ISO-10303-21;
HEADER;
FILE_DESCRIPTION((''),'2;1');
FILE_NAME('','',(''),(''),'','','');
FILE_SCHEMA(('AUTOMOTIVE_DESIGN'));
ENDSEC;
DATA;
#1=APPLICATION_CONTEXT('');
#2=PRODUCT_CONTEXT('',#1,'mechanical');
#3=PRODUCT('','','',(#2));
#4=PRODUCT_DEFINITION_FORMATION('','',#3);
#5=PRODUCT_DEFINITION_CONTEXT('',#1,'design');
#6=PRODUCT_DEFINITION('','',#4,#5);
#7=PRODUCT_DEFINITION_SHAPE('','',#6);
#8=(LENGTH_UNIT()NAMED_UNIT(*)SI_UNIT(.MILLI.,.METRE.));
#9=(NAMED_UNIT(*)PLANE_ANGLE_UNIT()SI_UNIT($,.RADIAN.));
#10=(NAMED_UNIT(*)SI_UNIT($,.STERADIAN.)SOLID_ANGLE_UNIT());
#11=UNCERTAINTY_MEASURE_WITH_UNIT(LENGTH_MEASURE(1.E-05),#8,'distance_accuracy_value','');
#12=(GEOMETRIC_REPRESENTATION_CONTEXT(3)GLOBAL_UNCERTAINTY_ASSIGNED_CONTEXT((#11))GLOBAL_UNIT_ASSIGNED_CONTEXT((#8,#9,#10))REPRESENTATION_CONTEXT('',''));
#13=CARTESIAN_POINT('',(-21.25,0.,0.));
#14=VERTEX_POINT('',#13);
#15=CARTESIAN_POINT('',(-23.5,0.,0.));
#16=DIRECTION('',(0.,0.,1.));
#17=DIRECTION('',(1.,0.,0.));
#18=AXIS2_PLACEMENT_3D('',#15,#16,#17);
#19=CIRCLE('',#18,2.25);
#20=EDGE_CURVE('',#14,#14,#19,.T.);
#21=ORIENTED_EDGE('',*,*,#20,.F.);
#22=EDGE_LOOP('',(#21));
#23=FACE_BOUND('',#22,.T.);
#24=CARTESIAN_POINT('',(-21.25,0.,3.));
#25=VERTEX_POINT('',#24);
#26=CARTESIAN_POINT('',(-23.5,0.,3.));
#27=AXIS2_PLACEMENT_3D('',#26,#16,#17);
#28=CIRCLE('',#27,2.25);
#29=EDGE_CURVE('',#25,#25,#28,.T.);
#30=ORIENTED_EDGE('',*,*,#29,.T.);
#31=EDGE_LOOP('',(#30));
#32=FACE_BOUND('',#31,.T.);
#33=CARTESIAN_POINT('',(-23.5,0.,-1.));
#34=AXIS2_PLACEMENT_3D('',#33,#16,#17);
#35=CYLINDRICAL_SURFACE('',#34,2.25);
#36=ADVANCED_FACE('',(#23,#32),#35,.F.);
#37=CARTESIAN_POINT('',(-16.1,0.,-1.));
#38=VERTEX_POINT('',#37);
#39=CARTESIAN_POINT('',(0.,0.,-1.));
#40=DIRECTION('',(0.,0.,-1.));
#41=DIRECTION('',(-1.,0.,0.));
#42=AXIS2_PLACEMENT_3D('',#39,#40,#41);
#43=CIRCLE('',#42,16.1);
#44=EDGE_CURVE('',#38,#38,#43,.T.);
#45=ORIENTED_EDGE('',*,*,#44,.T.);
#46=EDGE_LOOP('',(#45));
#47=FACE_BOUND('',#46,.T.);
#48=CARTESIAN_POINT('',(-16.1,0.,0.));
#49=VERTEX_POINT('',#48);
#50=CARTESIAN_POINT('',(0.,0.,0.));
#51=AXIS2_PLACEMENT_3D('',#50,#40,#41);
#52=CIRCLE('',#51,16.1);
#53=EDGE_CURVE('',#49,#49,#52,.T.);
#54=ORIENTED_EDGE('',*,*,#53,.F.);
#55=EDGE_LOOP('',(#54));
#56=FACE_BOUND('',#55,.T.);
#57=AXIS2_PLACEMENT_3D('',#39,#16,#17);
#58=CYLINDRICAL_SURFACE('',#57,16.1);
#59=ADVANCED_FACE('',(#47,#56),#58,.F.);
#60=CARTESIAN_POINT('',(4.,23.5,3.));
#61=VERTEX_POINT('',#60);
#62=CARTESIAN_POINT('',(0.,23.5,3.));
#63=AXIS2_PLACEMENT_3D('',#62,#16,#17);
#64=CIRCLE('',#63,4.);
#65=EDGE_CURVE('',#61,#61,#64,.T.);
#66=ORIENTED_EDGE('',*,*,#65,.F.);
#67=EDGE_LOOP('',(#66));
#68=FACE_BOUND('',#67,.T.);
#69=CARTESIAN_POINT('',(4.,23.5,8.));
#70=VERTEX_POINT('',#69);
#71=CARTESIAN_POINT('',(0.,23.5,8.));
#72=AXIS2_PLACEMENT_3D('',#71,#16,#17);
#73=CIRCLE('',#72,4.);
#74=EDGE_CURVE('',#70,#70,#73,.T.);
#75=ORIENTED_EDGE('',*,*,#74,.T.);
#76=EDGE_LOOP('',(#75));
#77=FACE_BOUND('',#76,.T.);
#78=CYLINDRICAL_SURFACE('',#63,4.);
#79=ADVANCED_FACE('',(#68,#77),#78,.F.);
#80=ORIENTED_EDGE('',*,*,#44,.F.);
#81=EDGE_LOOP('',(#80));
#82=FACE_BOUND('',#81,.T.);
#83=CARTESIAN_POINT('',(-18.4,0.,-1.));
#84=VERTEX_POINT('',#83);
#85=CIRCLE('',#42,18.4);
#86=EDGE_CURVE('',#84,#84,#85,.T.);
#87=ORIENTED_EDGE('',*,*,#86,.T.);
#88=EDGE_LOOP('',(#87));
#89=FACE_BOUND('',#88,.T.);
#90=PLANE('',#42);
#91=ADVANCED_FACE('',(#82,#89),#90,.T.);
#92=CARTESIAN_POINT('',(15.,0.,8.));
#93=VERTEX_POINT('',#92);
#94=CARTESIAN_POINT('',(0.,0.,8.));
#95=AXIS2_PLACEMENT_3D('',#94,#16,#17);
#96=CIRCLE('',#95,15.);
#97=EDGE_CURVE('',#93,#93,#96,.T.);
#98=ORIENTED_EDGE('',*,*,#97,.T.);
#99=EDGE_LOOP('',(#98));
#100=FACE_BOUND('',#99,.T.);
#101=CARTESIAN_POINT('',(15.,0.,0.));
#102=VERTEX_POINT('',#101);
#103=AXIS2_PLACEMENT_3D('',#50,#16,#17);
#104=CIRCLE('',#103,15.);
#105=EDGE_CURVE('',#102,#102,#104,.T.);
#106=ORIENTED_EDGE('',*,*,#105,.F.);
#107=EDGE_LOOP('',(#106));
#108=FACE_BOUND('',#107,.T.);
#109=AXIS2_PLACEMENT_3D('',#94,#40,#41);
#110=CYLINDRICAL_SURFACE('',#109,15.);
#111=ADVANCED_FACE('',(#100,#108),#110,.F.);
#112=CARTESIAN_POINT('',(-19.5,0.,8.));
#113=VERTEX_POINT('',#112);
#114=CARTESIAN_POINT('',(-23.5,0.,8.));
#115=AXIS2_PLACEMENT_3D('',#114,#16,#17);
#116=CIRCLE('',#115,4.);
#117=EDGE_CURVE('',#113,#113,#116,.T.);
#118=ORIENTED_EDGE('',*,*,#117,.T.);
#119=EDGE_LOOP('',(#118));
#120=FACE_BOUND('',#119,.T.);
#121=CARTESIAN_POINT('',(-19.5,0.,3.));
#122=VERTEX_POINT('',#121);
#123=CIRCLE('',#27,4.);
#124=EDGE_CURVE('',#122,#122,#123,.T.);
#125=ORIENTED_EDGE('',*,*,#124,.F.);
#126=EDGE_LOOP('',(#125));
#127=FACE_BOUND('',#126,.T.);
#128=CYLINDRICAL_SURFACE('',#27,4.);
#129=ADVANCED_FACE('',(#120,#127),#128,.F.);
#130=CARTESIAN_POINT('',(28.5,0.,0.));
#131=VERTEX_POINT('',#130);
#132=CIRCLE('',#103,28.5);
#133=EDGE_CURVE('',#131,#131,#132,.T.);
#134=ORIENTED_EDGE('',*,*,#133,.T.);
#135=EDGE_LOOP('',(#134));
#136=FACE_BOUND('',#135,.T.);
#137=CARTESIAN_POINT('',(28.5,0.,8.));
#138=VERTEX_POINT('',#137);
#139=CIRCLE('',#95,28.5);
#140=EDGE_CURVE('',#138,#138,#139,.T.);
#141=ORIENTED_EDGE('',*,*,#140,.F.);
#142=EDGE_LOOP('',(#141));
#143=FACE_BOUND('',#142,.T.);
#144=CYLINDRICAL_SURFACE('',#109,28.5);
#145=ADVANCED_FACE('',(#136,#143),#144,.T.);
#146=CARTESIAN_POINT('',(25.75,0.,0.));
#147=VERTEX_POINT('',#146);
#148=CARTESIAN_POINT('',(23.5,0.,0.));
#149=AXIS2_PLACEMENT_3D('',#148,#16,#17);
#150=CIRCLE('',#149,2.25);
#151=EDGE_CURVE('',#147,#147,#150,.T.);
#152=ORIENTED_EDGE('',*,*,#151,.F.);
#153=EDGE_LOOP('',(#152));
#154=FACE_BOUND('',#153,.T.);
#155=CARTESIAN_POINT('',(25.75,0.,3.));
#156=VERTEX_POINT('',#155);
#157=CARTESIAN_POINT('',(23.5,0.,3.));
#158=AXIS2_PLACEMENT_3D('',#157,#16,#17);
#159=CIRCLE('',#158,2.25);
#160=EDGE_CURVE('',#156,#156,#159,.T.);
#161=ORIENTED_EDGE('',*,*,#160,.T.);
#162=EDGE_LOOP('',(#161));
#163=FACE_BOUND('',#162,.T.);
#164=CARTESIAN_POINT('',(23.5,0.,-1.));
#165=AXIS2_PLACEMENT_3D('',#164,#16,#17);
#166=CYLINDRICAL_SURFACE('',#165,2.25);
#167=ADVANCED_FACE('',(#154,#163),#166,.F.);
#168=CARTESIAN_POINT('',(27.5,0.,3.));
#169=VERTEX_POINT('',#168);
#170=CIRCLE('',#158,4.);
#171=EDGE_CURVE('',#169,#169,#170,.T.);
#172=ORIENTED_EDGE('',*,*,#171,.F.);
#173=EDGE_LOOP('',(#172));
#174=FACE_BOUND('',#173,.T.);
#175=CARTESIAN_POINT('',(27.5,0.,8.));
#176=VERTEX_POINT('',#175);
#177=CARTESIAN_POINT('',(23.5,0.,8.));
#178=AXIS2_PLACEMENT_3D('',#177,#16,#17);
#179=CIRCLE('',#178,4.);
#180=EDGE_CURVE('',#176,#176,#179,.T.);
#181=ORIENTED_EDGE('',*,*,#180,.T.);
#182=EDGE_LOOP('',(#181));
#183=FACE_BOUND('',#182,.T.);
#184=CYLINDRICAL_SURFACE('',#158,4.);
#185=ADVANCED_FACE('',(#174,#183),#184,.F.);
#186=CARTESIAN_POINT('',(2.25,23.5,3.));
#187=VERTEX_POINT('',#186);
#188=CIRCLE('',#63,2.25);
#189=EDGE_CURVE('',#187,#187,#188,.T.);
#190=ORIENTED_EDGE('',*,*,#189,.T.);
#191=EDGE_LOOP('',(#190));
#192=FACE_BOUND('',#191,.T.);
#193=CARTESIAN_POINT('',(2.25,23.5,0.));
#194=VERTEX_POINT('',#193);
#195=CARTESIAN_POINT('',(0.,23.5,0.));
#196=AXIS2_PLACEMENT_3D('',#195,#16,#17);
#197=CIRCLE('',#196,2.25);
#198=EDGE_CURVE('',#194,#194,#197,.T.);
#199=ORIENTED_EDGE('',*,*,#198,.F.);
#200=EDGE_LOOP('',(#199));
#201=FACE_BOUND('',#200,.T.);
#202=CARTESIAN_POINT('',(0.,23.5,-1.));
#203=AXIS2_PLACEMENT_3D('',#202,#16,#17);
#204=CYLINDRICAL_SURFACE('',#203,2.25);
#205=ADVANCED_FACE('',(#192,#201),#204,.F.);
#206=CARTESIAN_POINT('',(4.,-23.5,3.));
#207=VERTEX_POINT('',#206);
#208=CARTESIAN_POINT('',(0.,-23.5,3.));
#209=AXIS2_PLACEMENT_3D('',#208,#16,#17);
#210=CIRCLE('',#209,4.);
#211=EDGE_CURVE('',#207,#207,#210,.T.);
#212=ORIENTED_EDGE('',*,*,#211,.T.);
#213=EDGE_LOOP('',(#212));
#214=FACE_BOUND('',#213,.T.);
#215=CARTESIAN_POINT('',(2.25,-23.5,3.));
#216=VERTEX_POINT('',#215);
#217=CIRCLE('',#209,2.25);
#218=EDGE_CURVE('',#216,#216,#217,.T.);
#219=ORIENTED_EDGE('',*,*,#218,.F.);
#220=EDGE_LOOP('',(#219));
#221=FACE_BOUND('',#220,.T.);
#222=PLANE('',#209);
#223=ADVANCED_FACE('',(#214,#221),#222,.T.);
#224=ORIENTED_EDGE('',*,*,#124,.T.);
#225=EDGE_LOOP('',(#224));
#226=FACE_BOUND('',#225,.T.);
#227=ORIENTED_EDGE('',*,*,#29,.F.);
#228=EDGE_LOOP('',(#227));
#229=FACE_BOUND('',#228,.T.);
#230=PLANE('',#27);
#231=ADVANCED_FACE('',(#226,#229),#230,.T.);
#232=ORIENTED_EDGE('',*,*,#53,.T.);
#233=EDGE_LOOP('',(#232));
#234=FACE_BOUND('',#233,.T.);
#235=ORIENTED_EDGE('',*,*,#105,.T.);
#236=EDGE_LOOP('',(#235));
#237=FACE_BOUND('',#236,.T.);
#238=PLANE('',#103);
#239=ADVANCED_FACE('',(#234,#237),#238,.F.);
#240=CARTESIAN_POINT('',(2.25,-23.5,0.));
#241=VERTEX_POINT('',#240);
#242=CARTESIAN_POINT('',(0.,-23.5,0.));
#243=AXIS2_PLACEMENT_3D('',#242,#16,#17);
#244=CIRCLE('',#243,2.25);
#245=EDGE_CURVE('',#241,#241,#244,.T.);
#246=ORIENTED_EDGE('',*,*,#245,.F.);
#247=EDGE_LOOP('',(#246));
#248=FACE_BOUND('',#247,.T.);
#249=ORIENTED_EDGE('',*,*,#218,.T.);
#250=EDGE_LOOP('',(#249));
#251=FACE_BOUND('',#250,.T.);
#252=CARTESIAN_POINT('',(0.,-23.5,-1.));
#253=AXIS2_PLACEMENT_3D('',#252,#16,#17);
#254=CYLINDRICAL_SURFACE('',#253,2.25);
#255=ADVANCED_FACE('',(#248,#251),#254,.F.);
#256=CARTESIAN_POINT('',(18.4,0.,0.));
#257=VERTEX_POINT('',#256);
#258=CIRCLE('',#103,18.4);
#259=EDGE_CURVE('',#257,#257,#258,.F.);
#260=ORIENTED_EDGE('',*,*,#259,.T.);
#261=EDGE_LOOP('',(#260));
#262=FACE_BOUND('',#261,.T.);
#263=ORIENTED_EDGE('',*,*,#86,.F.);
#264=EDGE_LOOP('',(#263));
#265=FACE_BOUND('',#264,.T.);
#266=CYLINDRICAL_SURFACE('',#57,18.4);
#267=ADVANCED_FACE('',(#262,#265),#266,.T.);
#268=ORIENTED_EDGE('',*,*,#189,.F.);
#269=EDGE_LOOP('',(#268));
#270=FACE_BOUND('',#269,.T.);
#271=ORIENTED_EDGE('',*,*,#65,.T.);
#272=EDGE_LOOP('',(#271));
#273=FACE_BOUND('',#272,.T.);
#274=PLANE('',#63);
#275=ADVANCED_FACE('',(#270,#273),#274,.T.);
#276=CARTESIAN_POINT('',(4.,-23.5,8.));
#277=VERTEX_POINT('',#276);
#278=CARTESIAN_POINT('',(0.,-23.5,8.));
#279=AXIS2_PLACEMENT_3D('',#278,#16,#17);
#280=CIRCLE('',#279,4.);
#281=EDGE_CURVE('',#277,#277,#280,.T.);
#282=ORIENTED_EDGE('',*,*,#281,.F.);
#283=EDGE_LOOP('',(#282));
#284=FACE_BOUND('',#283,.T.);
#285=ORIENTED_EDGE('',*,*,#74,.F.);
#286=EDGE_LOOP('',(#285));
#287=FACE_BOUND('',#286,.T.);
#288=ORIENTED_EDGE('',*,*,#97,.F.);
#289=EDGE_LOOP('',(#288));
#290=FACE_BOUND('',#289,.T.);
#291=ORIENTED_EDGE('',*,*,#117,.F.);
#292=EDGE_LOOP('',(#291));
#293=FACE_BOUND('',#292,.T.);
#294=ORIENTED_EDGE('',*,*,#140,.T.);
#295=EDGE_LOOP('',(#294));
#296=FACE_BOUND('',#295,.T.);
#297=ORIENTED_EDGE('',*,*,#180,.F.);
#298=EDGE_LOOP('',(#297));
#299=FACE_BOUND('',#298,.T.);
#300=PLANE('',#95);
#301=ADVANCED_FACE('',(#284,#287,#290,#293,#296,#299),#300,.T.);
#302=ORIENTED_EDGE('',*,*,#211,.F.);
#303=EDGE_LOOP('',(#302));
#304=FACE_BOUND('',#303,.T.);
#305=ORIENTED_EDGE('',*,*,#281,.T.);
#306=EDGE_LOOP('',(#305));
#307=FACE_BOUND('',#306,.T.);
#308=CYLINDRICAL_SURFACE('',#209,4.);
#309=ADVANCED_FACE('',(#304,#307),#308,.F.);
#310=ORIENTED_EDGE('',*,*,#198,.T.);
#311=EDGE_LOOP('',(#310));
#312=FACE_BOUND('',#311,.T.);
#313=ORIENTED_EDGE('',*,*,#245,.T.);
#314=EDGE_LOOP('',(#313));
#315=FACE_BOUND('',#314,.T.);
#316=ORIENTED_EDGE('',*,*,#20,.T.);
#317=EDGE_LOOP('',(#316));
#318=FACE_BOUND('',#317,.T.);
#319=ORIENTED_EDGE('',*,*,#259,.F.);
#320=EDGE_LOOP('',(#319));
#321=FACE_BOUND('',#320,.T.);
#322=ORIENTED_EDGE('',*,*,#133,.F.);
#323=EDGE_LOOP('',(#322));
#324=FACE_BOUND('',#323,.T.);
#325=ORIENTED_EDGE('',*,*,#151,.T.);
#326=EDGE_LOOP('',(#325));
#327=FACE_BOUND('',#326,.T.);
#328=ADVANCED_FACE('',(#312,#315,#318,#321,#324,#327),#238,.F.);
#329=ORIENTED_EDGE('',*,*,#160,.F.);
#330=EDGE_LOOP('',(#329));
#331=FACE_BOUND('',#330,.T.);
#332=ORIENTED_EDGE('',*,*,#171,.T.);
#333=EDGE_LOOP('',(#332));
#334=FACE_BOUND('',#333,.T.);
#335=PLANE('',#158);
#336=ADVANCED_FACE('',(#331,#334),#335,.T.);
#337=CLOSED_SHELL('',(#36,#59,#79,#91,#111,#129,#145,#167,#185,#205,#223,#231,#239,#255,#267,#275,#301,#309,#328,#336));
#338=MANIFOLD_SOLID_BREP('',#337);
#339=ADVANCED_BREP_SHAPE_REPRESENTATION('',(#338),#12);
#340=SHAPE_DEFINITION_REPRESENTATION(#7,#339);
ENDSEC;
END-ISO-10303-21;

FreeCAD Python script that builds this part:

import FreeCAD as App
import Part
import Sketcher

V = App.Vector

doc = App.newDocument("Part")
body = doc.addObject("PartDesign::Body", "Body")

# Sketch on XY plane
sketch1 = body.newObject("Sketcher::SketchObject", "Sketch")
sketch1.AttachmentSupport = (doc.getObject("XY_Plane"), [""])
sketch1.MapMode = "FlatFace"
sketch1.addGeometry([
    Part.Circle(V(0, 0, 0), V(0, 0, 1), 28),
    Part.Circle(V(0, 0, 0), V(0, 0, 1), 15),
], False)
sketch1.addConstraint([
    Sketcher.Constraint("Coincident", 0, 3, -1, 1),
    Sketcher.Constraint("Coincident", 1, 3, -1, 1),
    Sketcher.Constraint("Diameter", 0, 57.0),
    Sketcher.Constraint("Diameter", 1, 30.0),
])
pad1 = body.newObject("PartDesign::Pad", "Pad")
pad1.Profile = sketch1
pad1.Length = 8

# Sketch on XY plane
sketch2 = body.newObject("Sketcher::SketchObject", "Sketch001")
sketch2.AttachmentSupport = (doc.getObject("XY_Plane"), [""])
sketch2.MapMode = "FlatFace"
sketch2.addGeometry([
    Part.Circle(V(0, 0, 0), V(0, 0, 1), 18),
    Part.Circle(V(0, 0, 0), V(0, 0, 1), 16),
], False)
sketch2.addConstraint([
    Sketcher.Constraint("Coincident", 0, 3, -1, 1),
    Sketcher.Constraint("Coincident", 1, 3, -1, 1),
    Sketcher.Constraint("Diameter", 0, 36.8),
    Sketcher.Constraint("Diameter", 1, 32.2),
])
pad2 = body.newObject("PartDesign::Pad", "Pad001")
pad2.Profile = sketch2
pad2.Length = 1
pad2.Reversed = True

# Sketch on XY plane
sketch3 = body.newObject("Sketcher::SketchObject", "Sketch002")
sketch3.AttachmentSupport = (doc.getObject("XY_Plane"), [""])
sketch3.MapMode = "FlatFace"
sketch3.AttachmentOffset = App.Placement(V(0, 0, 8), App.Rotation())
sketch3.addGeometry([
    Part.Circle(V(0, 23.5, 0), V(0, 0, 1), 4),
    Part.Circle(V(-23.5, 0, 0), V(0, 0, 1), 4),
    Part.Circle(V(0, -23.5, 0), V(0, 0, 1), 4),
    Part.Circle(V(23.5, 0, 0), V(0, 0, 1), 4),
], False)
sketch3.addConstraint([
    Sketcher.Constraint("Equal", 0, 1),
    Sketcher.Constraint("Equal", 1, 2),
    Sketcher.Constraint("Equal", 2, 3),
    Sketcher.Constraint("Symmetric", 0, 3, 2, 3, -1, 1),
    Sketcher.Constraint("Symmetric", 1, 3, 3, 3, -1, 1),
    Sketcher.Constraint("PointOnObject", 0, 3, -2),
    Sketcher.Constraint("PointOnObject", 1, 3, -1),
    Sketcher.Constraint("Diameter", 0, 8.0),
    Sketcher.Constraint("DistanceY", 2, 3, 0, 3, 47.0),
    Sketcher.Constraint("DistanceX", 1, 3, 3, 3, 47.0),
])
pocket1 = body.newObject("PartDesign::Pocket", "Pocket")
pocket1.Profile = sketch3
pocket1.Length = 5

# Sketch on XY plane
sketch4 = body.newObject("Sketcher::SketchObject", "Sketch003")
sketch4.AttachmentSupport = (doc.getObject("XY_Plane"), [""])
sketch4.MapMode = "FlatFace"
sketch4.AttachmentOffset = App.Placement(V(0, 0, 8), App.Rotation())
sketch4.addGeometry([
    Part.Circle(V(-23.5, 0, 0), V(0, 0, 1), 2.2),
    Part.Circle(V(0, 23.5, 0), V(0, 0, 1), 2.2),
    Part.Circle(V(23.5, 0, 0), V(0, 0, 1), 2.2),
    Part.Circle(V(0, -23.5, 0), V(0, 0, 1), 2.2),
], False)
sketch4.addConstraint([
    Sketcher.Constraint("Equal", 0, 1),
    Sketcher.Constraint("Equal", 1, 2),
    Sketcher.Constraint("Equal", 2, 3),
    Sketcher.Constraint("Symmetric", 0, 3, 2, 3, -1, 1),
    Sketcher.Constraint("Symmetric", 1, 3, 3, 3, -1, 1),
    Sketcher.Constraint("PointOnObject", 0, 3, -1),
    Sketcher.Constraint("PointOnObject", 1, 3, -2),
    Sketcher.Constraint("Diameter", 0, 4.5),
    Sketcher.Constraint("DistanceX", 0, 3, 2, 3, 47.0),
    Sketcher.Constraint("DistanceY", 3, 3, 1, 3, 47.0),
])
pocket2 = body.newObject("PartDesign::Pocket", "Pocket001")
pocket2.Profile = sketch4
pocket2.Type = "ThroughAll"

doc.recompute()
